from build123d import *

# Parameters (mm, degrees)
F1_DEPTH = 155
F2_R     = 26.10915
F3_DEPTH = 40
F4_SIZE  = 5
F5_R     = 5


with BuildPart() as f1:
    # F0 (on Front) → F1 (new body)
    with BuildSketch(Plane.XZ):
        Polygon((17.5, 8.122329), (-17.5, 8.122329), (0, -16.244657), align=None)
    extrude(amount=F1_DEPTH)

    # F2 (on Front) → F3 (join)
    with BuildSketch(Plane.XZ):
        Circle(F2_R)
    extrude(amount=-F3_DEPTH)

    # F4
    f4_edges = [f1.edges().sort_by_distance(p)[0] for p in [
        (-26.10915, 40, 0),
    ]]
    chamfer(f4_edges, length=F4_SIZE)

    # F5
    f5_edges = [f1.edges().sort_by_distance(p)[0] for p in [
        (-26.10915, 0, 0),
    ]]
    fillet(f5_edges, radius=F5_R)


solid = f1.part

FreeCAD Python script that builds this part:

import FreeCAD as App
import Part
import Sketcher

V = App.Vector
Q = App.Units.Quantity


def edges_at(feature, points):
    """Names of the edges that pass closest to the given points."""
    edges = feature.Shape.Edges
    near = lambda p: min(range(len(edges)), key=lambda i: edges[i].distToShape(Part.Vertex(*p))[0])
    return sorted({f"Edge{near(p) + 1}" for p in points})

doc = App.newDocument("Part")
body = doc.addObject("PartDesign::Body", "Body")

sketch1 = doc.addObject("Sketcher::SketchObject", "Sketch")
body.addObject(sketch1)
sketch1.AttachmentSupport = (doc.XZ_Plane, [""])
sketch1.MapMode = "FlatFace"
sketch1.addGeometry([
    Part.LineSegment(V(18, 8, 0), V(-18, 8, 0)),
    Part.LineSegment(V(-18, 8, 0), V(0, -16, 0)),
    Part.LineSegment(V(0, -16, 0), V(18, 8, 0)),
], False)
sketch1.addConstraint([
    Sketcher.Constraint("Coincident", 0, 2, 1, 1),
    Sketcher.Constraint("Coincident", 1, 2, 2, 1),
    Sketcher.Constraint("Coincident", 2, 2, 0, 1),
    Sketcher.Constraint("Horizontal", 0),
    Sketcher.Constraint("PointOnObject", 1, 2, -2),
    Sketcher.Constraint("Equal", 1, 2),
    Sketcher.Constraint("DistanceX", 0, 2, 0, 1, Q("35 mm")),
    Sketcher.Constraint("Distance", 1, Q("30 mm")),
    Sketcher.Constraint("DistanceY", -1, 1, 0, 2, Q("8.122329 mm")),
])
pad1 = doc.addObject("PartDesign::Pad", "Pad")
body.addObject(pad1)
pad1.Profile = sketch1
pad1.Length = 155

sketch2 = doc.addObject("Sketcher::SketchObject", "Sketch001")
body.addObject(sketch2)
sketch2.AttachmentSupport = (doc.XZ_Plane, [""])
sketch2.MapMode = "FlatFace"
sketch2.addGeometry(Part.Circle(V(0, 0, 0), V(0, 0, 1), 26), False)
sketch2.addConstraint([
    Sketcher.Constraint("Coincident", 0, 3, -1, 1),
    Sketcher.Constraint("Diameter", 0, Q("52.2183 mm")),
])
pad2 = doc.addObject("PartDesign::Pad", "Pad001")
body.addObject(pad2)
pad2.Profile = sketch2
pad2.Length = 40
pad2.Reversed = True
doc.recompute()

chamfer = doc.addObject("PartDesign::Chamfer", "Chamfer")
body.addObject(chamfer)
chamfer.Base = (pad2, edges_at(pad2, [(-26.109, 40, 0)]))
chamfer.Size = 5
doc.recompute()

fillet = doc.addObject("PartDesign::Fillet", "Fillet")
body.addObject(fillet)
fillet.Base = (chamfer, edges_at(chamfer, [(-26.109, 0, 0)]))
fillet.Radius = 5

doc.recompute()
